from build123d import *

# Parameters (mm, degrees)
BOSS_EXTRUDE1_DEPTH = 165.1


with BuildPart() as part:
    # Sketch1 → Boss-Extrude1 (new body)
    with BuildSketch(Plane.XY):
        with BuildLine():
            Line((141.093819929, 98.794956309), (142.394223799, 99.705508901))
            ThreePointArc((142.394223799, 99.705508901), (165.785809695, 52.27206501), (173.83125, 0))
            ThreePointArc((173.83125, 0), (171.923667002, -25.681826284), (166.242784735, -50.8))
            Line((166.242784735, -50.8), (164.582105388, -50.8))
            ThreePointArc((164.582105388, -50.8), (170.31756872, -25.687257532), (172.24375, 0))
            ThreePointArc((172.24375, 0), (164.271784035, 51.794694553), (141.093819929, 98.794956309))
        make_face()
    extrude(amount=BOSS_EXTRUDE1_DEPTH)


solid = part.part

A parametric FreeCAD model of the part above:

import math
import FreeCAD as App
import Part
import Sketcher
from FreeCAD import Vector
Q = App.Units.Quantity

doc = App.newDocument("Part")
body = doc.addObject("PartDesign::Body", "Body")

sketch1 = body.newObject("Sketcher::SketchObject", "Sketch")
sketch1.AttachmentSupport = (doc.getObject("XY_Plane"), [""])
sketch1.MapMode = "FlatFace"
sketch1.addGeometry([
    Part.LineSegment(Vector(142.4, 99.7, 0), Vector(141.1, 98.8, 0)),
    Part.ArcOfCircle(Part.Circle(Vector(0, 0, 0), Vector(0, 0, 1), 172.2), math.radians(0), math.radians(35)),
    Part.ArcOfCircle(Part.Circle(Vector(0, 0, 0), Vector(0, 0, 1), 172.2), math.radians(-17.15), math.radians(0)),
    Part.LineSegment(Vector(164.6, -50.8, 0), Vector(166.2, -50.8, 0)),
    Part.ArcOfCircle(Part.Circle(Vector(0, 0, 0), Vector(0, 0, 1), 173.8), math.radians(-16.99), math.radians(0)),
    Part.ArcOfCircle(Part.Circle(Vector(0, 0, 0), Vector(0, 0, 1), 173.8), math.radians(0), math.radians(35)),
], False)
sketch1.addConstraint([
    Sketcher.Constraint("Coincident", 0, 2, 1, 2),
    Sketcher.Constraint("Tangent", 1, 1, 2, 2),
    Sketcher.Constraint("Coincident", 2, 1, 3, 1),
    Sketcher.Constraint("Coincident", 3, 2, 4, 1),
    Sketcher.Constraint("Tangent", 4, 2, 5, 1),
    Sketcher.Constraint("Coincident", 5, 2, 0, 1),
    Sketcher.Constraint("Horizontal", 3),
    Sketcher.Constraint("Coincident", 1, 3, -1, 1),
    Sketcher.Constraint("Coincident", 4, 3, -1, 1),
    Sketcher.Constraint("Equal", 1, 2),
    Sketcher.Constraint("Equal", 4, 5),
    Sketcher.Constraint("PointOnObject", 1, 1, -1),
    Sketcher.Constraint("PointOnObject", 4, 2, -1),
    Sketcher.Constraint("DistanceY", 2, 1, -1, 1, Q("2 in")),
    Sketcher.Constraint("Angle", 0, Q("-145 deg")),
    Sketcher.Constraint("Radius", 1, Q("6.78125 in")),
    Sketcher.Constraint("Radius", 4, Q("6.84375 in")),
    Sketcher.Constraint("DistanceX", -1, 1, 0, 2, 141.09382),
])
pad1 = body.newObject("PartDesign::Pad", "Pad")
pad1.Profile = sketch1
pad1.Length = Q("6.5 in")

doc.recompute()
